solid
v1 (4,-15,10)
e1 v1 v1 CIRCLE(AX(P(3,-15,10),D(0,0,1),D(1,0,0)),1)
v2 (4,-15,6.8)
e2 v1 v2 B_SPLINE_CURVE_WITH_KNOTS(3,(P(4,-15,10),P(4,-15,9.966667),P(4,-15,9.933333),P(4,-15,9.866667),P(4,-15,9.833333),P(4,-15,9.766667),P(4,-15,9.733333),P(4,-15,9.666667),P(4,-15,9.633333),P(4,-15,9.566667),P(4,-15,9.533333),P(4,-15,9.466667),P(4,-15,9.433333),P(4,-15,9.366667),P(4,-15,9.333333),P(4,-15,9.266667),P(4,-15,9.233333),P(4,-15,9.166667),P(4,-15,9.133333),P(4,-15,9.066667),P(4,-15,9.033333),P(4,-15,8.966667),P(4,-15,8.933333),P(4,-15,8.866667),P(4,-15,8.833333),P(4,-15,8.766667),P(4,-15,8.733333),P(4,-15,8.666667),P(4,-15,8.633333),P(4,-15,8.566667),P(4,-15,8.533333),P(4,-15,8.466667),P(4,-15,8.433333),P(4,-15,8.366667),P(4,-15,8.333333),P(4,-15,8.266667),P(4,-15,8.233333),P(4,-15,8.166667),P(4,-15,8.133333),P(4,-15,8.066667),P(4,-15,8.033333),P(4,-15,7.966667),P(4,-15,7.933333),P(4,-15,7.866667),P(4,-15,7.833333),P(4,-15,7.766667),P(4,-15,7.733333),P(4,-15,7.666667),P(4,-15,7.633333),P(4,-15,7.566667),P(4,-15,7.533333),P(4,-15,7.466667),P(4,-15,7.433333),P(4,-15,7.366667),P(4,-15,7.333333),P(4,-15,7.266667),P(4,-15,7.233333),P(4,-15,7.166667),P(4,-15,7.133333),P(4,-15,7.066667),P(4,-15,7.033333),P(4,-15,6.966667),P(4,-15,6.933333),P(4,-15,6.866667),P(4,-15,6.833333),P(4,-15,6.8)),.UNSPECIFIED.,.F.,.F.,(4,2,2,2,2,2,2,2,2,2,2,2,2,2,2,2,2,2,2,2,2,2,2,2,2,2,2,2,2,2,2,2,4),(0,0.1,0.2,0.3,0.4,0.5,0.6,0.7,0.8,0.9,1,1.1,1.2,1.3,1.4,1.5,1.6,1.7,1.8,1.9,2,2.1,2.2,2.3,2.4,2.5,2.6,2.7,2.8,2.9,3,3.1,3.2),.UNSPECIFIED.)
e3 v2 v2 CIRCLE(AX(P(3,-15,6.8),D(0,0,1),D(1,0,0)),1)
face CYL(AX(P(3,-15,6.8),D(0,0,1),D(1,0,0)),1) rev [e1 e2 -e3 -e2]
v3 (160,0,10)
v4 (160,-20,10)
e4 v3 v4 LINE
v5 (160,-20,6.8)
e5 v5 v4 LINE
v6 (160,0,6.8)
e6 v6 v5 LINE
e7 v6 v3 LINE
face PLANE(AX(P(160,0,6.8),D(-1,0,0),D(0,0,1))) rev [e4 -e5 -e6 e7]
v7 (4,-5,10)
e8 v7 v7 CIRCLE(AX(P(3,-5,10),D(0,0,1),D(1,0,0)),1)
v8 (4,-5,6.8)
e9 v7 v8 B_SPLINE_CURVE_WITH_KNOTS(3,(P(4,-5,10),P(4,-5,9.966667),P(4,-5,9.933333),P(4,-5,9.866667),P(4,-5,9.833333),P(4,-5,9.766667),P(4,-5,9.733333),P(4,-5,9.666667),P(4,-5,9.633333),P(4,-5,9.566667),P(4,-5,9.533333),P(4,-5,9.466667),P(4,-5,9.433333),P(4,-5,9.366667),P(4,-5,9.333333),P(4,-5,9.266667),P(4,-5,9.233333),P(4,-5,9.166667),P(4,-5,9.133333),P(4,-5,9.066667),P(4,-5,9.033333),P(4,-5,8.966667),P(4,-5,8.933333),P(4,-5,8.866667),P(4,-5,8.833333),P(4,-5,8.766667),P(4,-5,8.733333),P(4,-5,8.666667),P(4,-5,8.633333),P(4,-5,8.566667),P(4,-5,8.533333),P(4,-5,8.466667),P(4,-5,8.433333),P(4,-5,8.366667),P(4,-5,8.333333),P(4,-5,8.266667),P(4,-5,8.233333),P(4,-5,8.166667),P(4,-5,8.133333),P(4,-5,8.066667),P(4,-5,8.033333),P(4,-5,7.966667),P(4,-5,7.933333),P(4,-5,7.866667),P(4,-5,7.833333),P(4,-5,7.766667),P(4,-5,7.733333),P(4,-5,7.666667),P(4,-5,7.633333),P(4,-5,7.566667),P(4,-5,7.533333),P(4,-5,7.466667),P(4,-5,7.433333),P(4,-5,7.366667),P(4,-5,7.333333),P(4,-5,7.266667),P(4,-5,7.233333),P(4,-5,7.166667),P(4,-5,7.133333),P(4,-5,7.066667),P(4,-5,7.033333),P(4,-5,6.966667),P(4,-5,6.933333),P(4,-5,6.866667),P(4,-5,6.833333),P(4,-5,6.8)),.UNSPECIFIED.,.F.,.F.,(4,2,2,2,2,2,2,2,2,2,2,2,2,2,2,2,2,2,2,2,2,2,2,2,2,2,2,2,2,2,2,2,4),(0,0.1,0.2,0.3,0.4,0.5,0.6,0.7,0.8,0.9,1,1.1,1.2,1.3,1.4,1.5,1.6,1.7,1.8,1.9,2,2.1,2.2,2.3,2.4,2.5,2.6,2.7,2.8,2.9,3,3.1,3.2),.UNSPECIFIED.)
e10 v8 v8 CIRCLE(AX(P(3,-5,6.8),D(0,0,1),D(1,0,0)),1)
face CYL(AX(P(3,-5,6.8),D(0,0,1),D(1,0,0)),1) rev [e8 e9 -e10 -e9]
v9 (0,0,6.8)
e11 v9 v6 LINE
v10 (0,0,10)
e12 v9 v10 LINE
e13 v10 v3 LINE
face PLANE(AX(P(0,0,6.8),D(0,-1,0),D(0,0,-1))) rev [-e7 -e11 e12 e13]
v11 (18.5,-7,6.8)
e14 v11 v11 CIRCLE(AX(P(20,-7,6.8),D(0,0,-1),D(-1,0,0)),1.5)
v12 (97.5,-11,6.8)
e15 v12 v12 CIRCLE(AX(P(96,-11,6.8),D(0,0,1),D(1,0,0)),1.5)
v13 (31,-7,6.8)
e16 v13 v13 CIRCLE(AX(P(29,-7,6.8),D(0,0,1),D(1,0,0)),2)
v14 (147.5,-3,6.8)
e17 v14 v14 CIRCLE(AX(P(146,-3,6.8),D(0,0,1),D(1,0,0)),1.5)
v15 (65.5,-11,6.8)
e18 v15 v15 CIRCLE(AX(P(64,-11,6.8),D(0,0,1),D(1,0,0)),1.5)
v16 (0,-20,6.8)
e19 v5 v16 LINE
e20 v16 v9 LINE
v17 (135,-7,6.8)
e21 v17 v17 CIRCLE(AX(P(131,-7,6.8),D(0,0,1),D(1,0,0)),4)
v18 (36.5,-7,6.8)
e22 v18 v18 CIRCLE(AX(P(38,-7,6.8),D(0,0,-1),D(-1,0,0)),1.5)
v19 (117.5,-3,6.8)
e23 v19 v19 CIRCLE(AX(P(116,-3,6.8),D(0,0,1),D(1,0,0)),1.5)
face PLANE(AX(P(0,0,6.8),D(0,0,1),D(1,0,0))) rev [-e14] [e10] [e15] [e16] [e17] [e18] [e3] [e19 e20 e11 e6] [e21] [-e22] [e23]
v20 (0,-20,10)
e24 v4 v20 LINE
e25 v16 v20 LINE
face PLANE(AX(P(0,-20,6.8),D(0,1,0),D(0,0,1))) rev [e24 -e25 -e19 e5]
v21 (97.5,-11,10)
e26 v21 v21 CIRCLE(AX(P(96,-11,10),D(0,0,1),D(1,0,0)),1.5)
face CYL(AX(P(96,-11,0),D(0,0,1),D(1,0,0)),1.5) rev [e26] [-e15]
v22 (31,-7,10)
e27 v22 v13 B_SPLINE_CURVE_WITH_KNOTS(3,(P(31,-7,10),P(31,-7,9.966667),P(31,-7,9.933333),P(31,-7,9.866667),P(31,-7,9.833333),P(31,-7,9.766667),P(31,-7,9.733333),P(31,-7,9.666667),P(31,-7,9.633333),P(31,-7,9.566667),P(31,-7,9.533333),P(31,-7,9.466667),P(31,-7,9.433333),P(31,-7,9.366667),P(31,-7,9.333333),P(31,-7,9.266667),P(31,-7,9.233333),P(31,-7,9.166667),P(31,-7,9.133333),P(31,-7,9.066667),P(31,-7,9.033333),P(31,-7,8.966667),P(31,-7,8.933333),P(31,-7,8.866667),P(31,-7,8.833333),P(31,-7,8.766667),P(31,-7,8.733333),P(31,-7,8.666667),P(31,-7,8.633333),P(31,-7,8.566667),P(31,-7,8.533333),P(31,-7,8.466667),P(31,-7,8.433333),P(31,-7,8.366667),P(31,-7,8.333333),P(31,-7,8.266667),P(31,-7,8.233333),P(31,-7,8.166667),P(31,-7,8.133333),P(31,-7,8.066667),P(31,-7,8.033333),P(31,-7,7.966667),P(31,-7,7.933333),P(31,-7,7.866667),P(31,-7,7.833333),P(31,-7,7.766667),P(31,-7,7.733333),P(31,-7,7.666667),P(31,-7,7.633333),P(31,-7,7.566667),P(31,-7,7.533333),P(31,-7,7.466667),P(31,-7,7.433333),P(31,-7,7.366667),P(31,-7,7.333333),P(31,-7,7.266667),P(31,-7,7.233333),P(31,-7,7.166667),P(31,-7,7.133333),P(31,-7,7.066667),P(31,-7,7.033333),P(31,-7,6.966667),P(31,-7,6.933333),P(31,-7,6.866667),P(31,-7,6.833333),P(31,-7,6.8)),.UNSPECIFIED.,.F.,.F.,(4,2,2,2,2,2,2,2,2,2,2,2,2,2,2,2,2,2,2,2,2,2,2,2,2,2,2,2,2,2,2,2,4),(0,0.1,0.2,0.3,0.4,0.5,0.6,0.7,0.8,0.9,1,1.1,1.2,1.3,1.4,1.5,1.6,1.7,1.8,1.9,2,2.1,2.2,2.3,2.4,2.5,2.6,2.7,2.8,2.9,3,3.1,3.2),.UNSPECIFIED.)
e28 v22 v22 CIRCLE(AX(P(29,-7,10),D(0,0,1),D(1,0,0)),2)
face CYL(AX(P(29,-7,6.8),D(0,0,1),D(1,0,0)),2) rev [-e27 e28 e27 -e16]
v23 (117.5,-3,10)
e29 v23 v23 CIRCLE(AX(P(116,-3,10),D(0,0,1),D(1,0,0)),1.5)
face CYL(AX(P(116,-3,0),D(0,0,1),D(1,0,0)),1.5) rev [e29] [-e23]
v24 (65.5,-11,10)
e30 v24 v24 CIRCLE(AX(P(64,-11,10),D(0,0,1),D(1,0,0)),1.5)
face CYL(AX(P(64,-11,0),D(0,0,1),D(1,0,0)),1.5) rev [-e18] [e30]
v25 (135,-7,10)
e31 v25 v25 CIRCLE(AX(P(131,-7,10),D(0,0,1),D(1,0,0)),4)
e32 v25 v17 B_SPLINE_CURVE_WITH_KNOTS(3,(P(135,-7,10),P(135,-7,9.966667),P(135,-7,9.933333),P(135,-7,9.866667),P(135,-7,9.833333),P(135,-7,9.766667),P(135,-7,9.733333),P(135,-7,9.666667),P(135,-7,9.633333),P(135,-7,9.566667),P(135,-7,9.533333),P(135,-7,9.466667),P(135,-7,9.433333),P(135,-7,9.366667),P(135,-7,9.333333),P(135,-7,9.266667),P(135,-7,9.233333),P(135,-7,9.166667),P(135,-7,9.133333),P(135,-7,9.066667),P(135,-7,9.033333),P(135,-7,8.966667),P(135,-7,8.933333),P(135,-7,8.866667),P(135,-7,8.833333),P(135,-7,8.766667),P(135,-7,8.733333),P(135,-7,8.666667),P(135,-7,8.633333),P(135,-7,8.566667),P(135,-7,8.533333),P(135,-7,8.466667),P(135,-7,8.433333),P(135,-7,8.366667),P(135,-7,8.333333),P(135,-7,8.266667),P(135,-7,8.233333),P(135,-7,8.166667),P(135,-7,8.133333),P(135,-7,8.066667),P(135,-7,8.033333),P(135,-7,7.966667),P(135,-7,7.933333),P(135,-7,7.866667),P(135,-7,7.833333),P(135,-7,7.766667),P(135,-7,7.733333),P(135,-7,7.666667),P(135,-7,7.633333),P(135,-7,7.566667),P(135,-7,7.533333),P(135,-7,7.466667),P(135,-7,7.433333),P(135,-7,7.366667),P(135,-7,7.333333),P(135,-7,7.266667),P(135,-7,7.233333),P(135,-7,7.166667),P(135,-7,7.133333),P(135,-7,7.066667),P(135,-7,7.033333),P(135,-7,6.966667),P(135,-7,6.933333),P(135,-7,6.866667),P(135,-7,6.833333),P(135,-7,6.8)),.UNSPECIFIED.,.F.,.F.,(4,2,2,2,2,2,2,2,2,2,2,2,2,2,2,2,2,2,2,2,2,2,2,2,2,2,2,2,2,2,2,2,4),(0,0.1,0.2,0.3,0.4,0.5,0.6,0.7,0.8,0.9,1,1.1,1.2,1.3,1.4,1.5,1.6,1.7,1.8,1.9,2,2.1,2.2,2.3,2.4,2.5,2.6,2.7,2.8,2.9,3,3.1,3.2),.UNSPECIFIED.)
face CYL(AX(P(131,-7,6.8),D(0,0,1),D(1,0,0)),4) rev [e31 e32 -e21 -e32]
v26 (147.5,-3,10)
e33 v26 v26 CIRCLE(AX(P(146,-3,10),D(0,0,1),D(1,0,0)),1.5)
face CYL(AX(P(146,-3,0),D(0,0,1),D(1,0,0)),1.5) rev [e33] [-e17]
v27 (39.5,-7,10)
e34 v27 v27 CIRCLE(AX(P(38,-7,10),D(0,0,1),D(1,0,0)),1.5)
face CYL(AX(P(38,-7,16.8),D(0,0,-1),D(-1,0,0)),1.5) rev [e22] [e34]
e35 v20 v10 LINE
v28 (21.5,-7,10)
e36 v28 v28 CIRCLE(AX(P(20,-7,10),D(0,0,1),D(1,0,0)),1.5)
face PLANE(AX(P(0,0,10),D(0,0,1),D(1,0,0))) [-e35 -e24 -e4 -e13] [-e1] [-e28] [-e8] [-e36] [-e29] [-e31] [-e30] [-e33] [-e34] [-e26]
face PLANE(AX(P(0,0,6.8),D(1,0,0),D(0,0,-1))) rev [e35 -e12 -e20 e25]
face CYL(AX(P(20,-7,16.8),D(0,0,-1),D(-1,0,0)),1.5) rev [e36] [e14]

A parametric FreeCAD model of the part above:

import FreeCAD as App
import Part
import Sketcher
from FreeCAD import Vector
Q = App.Units.Quantity

doc = App.newDocument("Part")
body = doc.addObject("PartDesign::Body", "Body")

# Sketch on XY plane
sketch1 = body.newObject("Sketcher::SketchObject", "Sketch")
sketch1.AttachmentSupport = (doc.getObject("XY_Plane"), [""])
sketch1.MapMode = "FlatFace"
sketch1.AttachmentOffset = App.Placement(Vector(0, 0, 10), App.Rotation())
sketch1.addGeometry([
    Part.LineSegment(Vector(0, -20, 0), Vector(0, 0, 0)),
    Part.LineSegment(Vector(0, 0, 0), Vector(160, 0, 0)),
    Part.LineSegment(Vector(160, 0, 0), Vector(160, -20, 0)),
    Part.LineSegment(Vector(160, -20, 0), Vector(0, -20, 0)),
], False)
sketch1.addConstraint([
    Sketcher.Constraint("Coincident", 0, 2, 1, 1),
    Sketcher.Constraint("Coincident", 1, 2, 2, 1),
    Sketcher.Constraint("Coincident", 2, 2, 3, 1),
    Sketcher.Constraint("Coincident", 3, 2, 0, 1),
    Sketcher.Constraint("Vertical", 0),
    Sketcher.Constraint("Horizontal", 1),
    Sketcher.Constraint("Vertical", 2),
    Sketcher.Constraint("Horizontal", 3),
    Sketcher.Constraint("Coincident", 0, 2, -1, 1),
    Sketcher.Constraint("DistanceX", 1, 1, 1, 2, Q("160 mm")),
    Sketcher.Constraint("DistanceY", 0, 1, 0, 2, Q("20 mm")),
])
pad1 = body.newObject("PartDesign::Pad", "Pad")
pad1.Profile = sketch1
pad1.Length = 3.2
pad1.Reversed = True

# Sketch on XY plane
sketch2 = body.newObject("Sketcher::SketchObject", "Sketch001")
sketch2.AttachmentSupport = (doc.getObject("XY_Plane"), [""])
sketch2.MapMode = "FlatFace"
sketch2.AttachmentOffset = App.Placement(Vector(0, 0, 10), App.Rotation())
sketch2.addGeometry([
    Part.Circle(Vector(131, -7, 0), Vector(0, 0, 1), 4),
    Part.Circle(Vector(29, -7, 0), Vector(0, 0, 1), 2),
], False)
sketch2.addConstraint([
    Sketcher.Constraint("Horizontal", 0, 3, 1, 3),
    Sketcher.Constraint("Diameter", 0, Q("8 mm")),
    Sketcher.Constraint("Diameter", 1, Q("4 mm")),
    Sketcher.Constraint("DistanceX", -1, 1, 0, 3, Q("131 mm")),
    Sketcher.Constraint("DistanceY", 0, 3, -1, 1, Q("7 mm")),
    Sketcher.Constraint("DistanceX", -1, 1, 1, 3, Q("29 mm")),
])
pocket1 = body.newObject("PartDesign::Pocket", "Pocket")
pocket1.Profile = sketch2
pocket1.Type = "ThroughAll"
pocket1.Midplane = True

# Sketch on XY plane
sketch3 = body.newObject("Sketcher::SketchObject", "Sketch002")
sketch3.AttachmentSupport = (doc.getObject("XY_Plane"), [""])
sketch3.MapMode = "FlatFace"
sketch3.AttachmentOffset = App.Placement(Vector(0, 0, 10), App.Rotation())
sketch3.addGeometry([
    Part.Circle(Vector(96, -11, 0), Vector(0, 0, 1), 1.5),
    Part.Circle(Vector(64, -11, 0), Vector(0, 0, 1), 1.5),
], False)
sketch3.addConstraint([
    Sketcher.Constraint("Equal", 0, 1),
    Sketcher.Constraint("Horizontal", 0, 3, 1, 3),
    Sketcher.Constraint("Diameter", 0, Q("3 mm")),
    Sketcher.Constraint("DistanceX", -1, 1, 0, 3, Q("96 mm")),
    Sketcher.Constraint("DistanceY", 0, 3, -1, 1, Q("11 mm")),
    Sketcher.Constraint("DistanceX", -1, 1, 1, 3, Q("64 mm")),
])
pocket2 = body.newObject("PartDesign::Pocket", "Pocket001")
pocket2.Profile = sketch3
pocket2.Length = 10

# Sketch on XY plane
sketch4 = body.newObject("Sketcher::SketchObject", "Sketch003")
sketch4.AttachmentSupport = (doc.getObject("XY_Plane"), [""])
sketch4.MapMode = "FlatFace"
sketch4.AttachmentOffset = App.Placement(Vector(0, 0, 10), App.Rotation())
sketch4.addGeometry([
    Part.Circle(Vector(3, -15, 0), Vector(0, 0, 1), 1),
    Part.Circle(Vector(3, -5, 0), Vector(0, 0, 1), 1),
], False)
sketch4.addConstraint([
    Sketcher.Constraint("Equal", 0, 1),
    Sketcher.Constraint("Vertical", 0, 3, 1, 3),
    Sketcher.Constraint("Diameter", 0, Q("2 mm")),
    Sketcher.Constraint("DistanceX", -1, 1, 0, 3, Q("3 mm")),
    Sketcher.Constraint("DistanceY", 0, 3, -1, 1, Q("15 mm")),
    Sketcher.Constraint("DistanceY", 1, 3, -1, 1, Q("5 mm")),
])
pocket3 = body.newObject("PartDesign::Pocket", "Pocket002")
pocket3.Profile = sketch4
pocket3.Type = "ThroughAll"
pocket3.Midplane = True

# Sketch on XY plane
sketch5 = body.newObject("Sketcher::SketchObject", "Sketch004")
sketch5.AttachmentSupport = (doc.getObject("XY_Plane"), [""])
sketch5.MapMode = "FlatFace"
sketch5.AttachmentOffset = App.Placement(Vector(0, 0, 10), App.Rotation())
sketch5.addGeometry([
    Part.Circle(Vector(146, -3, 0), Vector(0, 0, 1), 1.5),
    Part.Circle(Vector(116, -3, 0), Vector(0, 0, 1), 1.5),
], False)
sketch5.addConstraint([
    Sketcher.Constraint("Equal", 0, 1),
    Sketcher.Constraint("Horizontal", 0, 3, 1, 3),
    Sketcher.Constraint("Diameter", 0, Q("3 mm")),
    Sketcher.Constraint("DistanceX", -1, 1, 0, 3, Q("146 mm")),
    Sketcher.Constraint("DistanceY", 0, 3, -1, 1, Q("3 mm")),
    Sketcher.Constraint("DistanceX", -1, 1, 1, 3, Q("116 mm")),
])
pocket4 = body.newObject("PartDesign::Pocket", "Pocket003")
pocket4.Profile = sketch5
pocket4.Length = 10

# Sketch on XY plane
sketch6 = body.newObject("Sketcher::SketchObject", "Sketch005")
sketch6.AttachmentSupport = (doc.getObject("XY_Plane"), [""])
sketch6.MapMode = "FlatFace"
sketch6.AttachmentOffset = App.Placement(Vector(0, 0, 6.8), App.Rotation())
sketch6.addGeometry([
    Part.Circle(Vector(20, -7, 0), Vector(0, 0, 1), 1.5),
    Part.Circle(Vector(38, -7, 0), Vector(0, 0, 1), 1.5),
], False)
sketch6.addConstraint([
    Sketcher.Constraint("Equal", 0, 1),
    Sketcher.Constraint("Horizontal", 0, 3, 1, 3),
    Sketcher.Constraint("Diameter", 0, Q("3 mm")),
    Sketcher.Constraint("DistanceX", -1, 1, 0, 3, Q("20 mm")),
    Sketcher.Constraint("DistanceY", 0, 3, -1, 1, Q("7 mm")),
    Sketcher.Constraint("DistanceX", -1, 1, 1, 3, Q("38 mm")),
])
pocket5 = body.newObject("PartDesign::Pocket", "Pocket004")
pocket5.Profile = sketch6
pocket5.Length = 10
pocket5.Reversed = True

doc.recompute()
